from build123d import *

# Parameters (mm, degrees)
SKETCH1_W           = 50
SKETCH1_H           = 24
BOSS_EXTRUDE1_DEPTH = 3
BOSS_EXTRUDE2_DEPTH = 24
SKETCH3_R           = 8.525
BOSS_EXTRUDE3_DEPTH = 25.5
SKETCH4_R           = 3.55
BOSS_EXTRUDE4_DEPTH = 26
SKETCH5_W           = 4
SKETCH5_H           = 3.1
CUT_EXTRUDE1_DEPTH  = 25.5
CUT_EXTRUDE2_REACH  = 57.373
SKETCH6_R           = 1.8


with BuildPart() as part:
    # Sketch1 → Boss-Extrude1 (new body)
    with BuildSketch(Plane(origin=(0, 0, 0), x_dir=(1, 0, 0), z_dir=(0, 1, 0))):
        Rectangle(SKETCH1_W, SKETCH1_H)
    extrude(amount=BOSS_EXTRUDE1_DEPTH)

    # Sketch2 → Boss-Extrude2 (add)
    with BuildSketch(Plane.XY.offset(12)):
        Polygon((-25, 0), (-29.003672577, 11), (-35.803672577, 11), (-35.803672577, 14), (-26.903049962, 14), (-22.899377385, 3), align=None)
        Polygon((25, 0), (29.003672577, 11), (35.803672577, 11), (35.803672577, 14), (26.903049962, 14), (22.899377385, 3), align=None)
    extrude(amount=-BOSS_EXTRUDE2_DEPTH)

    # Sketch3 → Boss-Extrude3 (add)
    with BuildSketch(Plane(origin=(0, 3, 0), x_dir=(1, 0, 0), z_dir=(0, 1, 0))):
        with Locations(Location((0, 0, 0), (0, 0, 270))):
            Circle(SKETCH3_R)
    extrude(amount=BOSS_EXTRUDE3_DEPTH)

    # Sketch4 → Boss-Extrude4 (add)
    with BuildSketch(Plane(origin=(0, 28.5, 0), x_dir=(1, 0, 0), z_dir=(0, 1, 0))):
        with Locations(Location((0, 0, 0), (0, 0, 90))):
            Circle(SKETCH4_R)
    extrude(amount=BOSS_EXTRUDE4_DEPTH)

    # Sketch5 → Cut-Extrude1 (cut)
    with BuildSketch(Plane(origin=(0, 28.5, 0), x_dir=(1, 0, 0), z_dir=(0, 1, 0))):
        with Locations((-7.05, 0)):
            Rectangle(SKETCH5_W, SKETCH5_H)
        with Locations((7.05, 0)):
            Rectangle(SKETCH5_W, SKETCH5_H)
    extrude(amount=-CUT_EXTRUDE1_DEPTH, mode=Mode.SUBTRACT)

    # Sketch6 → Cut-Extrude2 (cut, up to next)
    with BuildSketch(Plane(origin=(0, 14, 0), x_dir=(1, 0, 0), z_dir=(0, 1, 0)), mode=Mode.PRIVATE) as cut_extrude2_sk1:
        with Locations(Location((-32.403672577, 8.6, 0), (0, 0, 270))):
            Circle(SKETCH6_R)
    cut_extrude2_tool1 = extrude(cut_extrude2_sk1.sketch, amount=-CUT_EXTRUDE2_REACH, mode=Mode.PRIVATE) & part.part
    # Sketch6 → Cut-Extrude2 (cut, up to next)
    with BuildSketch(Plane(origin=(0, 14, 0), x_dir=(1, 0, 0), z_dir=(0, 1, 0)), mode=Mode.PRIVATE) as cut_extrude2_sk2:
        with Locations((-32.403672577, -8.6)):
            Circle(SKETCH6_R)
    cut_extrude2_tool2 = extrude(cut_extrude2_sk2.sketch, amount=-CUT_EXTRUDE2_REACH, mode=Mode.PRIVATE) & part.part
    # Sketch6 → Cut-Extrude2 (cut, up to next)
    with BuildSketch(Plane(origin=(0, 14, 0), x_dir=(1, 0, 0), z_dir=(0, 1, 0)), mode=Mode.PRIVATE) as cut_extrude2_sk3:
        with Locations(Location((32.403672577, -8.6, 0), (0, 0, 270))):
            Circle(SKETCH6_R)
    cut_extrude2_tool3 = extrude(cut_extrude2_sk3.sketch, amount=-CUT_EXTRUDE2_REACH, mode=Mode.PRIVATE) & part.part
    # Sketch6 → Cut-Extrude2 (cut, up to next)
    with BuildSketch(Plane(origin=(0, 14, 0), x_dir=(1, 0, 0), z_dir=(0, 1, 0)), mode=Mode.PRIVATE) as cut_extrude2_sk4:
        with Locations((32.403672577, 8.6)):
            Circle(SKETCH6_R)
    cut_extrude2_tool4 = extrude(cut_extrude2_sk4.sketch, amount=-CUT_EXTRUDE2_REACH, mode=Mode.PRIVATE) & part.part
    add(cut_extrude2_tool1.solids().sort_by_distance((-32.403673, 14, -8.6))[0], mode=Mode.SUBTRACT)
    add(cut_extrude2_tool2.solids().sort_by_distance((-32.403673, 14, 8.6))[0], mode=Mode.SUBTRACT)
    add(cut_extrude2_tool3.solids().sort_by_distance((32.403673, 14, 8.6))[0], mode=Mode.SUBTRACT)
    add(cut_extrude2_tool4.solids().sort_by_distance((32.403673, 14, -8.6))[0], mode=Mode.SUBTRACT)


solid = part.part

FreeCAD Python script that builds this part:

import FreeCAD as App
import Part
import Sketcher
from FreeCAD import Vector
Q = App.Units.Quantity


def add_polygon(sketch, points):
    """Adds a closed chain of lines whose ends are joined by coincident constraints."""
    first, n = sketch.GeometryCount, len(points)
    for a, b in zip(points, points[1:] + points[:1]):
        sketch.addGeometry(Part.LineSegment(App.Vector(*a, 0), App.Vector(*b, 0)), False)
    for i in range(n):
        sketch.addConstraint(Sketcher.Constraint("Coincident", first + i, 2, first + (i + 1) % n, 1))

doc = App.newDocument("Part")
body = doc.addObject("PartDesign::Body", "Body")

# Sketch on XZ plane
sketch1 = body.newObject("Sketcher::SketchObject", "Sketch")
sketch1.AttachmentSupport = (doc.getObject("XZ_Plane"), [""])
sketch1.MapMode = "FlatFace"
add_polygon(sketch1, [(-25, -12), (-25, 12), (25, 12), (25, -12)])  # lines 0-3
sketch1.addConstraint(Sketcher.Constraint("Vertical", 0))
sketch1.addConstraint(Sketcher.Constraint("Horizontal", 1))
sketch1.addConstraint(Sketcher.Constraint("Vertical", 2))
sketch1.addConstraint(Sketcher.Constraint("Horizontal", 3))
sketch1.addConstraint(Sketcher.Constraint("Symmetric", 0, 2, 2, 2, -1, 1))
sketch1.addConstraint(Sketcher.Constraint("DistanceX", 1, 1, 1, 2, Q("50 mm")))
sketch1.addConstraint(Sketcher.Constraint("DistanceY", 0, 1, 0, 2, Q("24 mm")))
pad1 = body.newObject("PartDesign::Pad", "Pad")
pad1.Profile = sketch1
pad1.Length = 3
pad1.Reversed = True

# Sketch on XY plane
sketch2 = body.newObject("Sketcher::SketchObject", "Sketch001")
sketch2.AttachmentSupport = (doc.getObject("XY_Plane"), [""])
sketch2.MapMode = "FlatFace"
sketch2.AttachmentOffset = App.Placement(Vector(0, 0, 12), App.Rotation())
add_polygon(sketch2, [(-29.003673, 11), (-25, 0), (-22.899377, 3), (-26.90305, 14), (-35.803673, 14), (-35.803673, 11)])  # lines 0-5
add_polygon(sketch2, [(25, 0), (29.003673, 11), (35.803673, 11), (35.803673, 14), (26.90305, 14), (22.899377, 3)])  # lines 6-11
sketch2.addConstraint(Sketcher.Constraint("Horizontal", 3))
sketch2.addConstraint(Sketcher.Constraint("Vertical", 4))
sketch2.addConstraint(Sketcher.Constraint("Horizontal", 5))
sketch2.addConstraint(Sketcher.Constraint("Horizontal", 7))
sketch2.addConstraint(Sketcher.Constraint("Vertical", 8))
sketch2.addConstraint(Sketcher.Constraint("Horizontal", 9))
sketch2.addConstraint(Sketcher.Constraint("Symmetric", 0, 2, 11, 2, -1, 1))
sketch2.addConstraint(Sketcher.Constraint("Symmetric", 5, 2, 6, 2, -2))
sketch2.addConstraint(Sketcher.Constraint("Symmetric", 3, 2, 8, 2, -2))
sketch2.addConstraint(Sketcher.Constraint("Symmetric", 1, 2, 10, 2, -2))
sketch2.addConstraint(Sketcher.Constraint("PointOnObject", 0, 2, -1))
sketch2.addConstraint(Sketcher.Constraint("Parallel", 0, 2))
sketch2.addConstraint(Sketcher.Constraint("Parallel", 6, 10))
sketch2.addConstraint(Sketcher.Constraint("Equal", 0, 2))
sketch2.addConstraint(Sketcher.Constraint("DistanceY", 4, 2, 4, 1, Q("3 mm")))
sketch2.addConstraint(Sketcher.Constraint("Angle", 0, Q("-70 deg")))
sketch2.addConstraint(Sketcher.Constraint("Angle", 1, Q("55 deg")))
sketch2.addConstraint(Sketcher.Constraint("DistanceX", 5, 1, 5, 2, Q("6.8 mm")))
sketch2.addConstraint(Sketcher.Constraint("DistanceX", 0, 2, -1, 1, Q("25 mm")))
sketch2.addConstraint(Sketcher.Constraint("DistanceY", -1, 1, 2, 2, Q("14 mm")))
pad2 = body.newObject("PartDesign::Pad", "Pad001")
pad2.Profile = sketch2
pad2.Length = 24
pad2.Reversed = True

# Sketch on XZ plane
sketch3 = body.newObject("Sketcher::SketchObject", "Sketch002")
sketch3.AttachmentSupport = (doc.getObject("XZ_Plane"), [""])
sketch3.MapMode = "FlatFace"
sketch3.AttachmentOffset = App.Placement(Vector(0, 0, -3), App.Rotation())
sketch3.addGeometry(Part.Circle(Vector(0, 0, 0), Vector(0, 0, 1), 8.525), False)
sketch3.addConstraint(Sketcher.Constraint("Coincident", 0, 3, -1, 1))
sketch3.addConstraint(Sketcher.Constraint("Diameter", 0, Q("17.05 mm")))
pad3 = body.newObject("PartDesign::Pad", "Pad002")
pad3.Profile = sketch3
pad3.Length = 25.5
pad3.Reversed = True

# Sketch on XZ plane
sketch4 = body.newObject("Sketcher::SketchObject", "Sketch003")
sketch4.AttachmentSupport = (doc.getObject("XZ_Plane"), [""])
sketch4.MapMode = "FlatFace"
sketch4.AttachmentOffset = App.Placement(Vector(0, 0, -28.5), App.Rotation())
sketch4.addGeometry(Part.Circle(Vector(0, 0, 0), Vector(0, 0, 1), 3.55), False)
sketch4.addConstraint(Sketcher.Constraint("Coincident", 0, 3, -1, 1))
sketch4.addConstraint(Sketcher.Constraint("Diameter", 0, Q("7.1 mm")))
pad4 = body.newObject("PartDesign::Pad", "Pad003")
pad4.Profile = sketch4
pad4.Length = 26
pad4.Reversed = True

# Sketch on XZ plane
sketch5 = body.newObject("Sketcher::SketchObject", "Sketch004")
sketch5.AttachmentSupport = (doc.getObject("XZ_Plane"), [""])
sketch5.MapMode = "FlatFace"
sketch5.AttachmentOffset = App.Placement(Vector(0, 0, -28.5), App.Rotation())
add_polygon(sketch5, [(-9.05, -1.55), (-9.05, 1.55), (-5.05, 1.55), (-5.05, -1.55)])  # lines 0-3
add_polygon(sketch5, [(5.05, -1.55), (5.05, 1.55), (9.05, 1.55), (9.05, -1.55)])  # lines 4-7
sketch5.addConstraint(Sketcher.Constraint("Vertical", 0))
sketch5.addConstraint(Sketcher.Constraint("Horizontal", 1))
sketch5.addConstraint(Sketcher.Constraint("Vertical", 2))
sketch5.addConstraint(Sketcher.Constraint("Horizontal", 3))
sketch5.addConstraint(Sketcher.Constraint("Vertical", 4))
sketch5.addConstraint(Sketcher.Constraint("Horizontal", 5))
sketch5.addConstraint(Sketcher.Constraint("Vertical", 6))
sketch5.addConstraint(Sketcher.Constraint("Horizontal", 7))
sketch5.addConstraint(Sketcher.Constraint("Symmetric", 2, 2, 4, 2, -1, 1))
sketch5.addConstraint(Sketcher.Constraint("Symmetric", 0, 2, 6, 2, -1, 1))
sketch5.addConstraint(Sketcher.Constraint("Horizontal", 1, 2, 4, 2))
sketch5.addConstraint(Sketcher.Constraint("DistanceX", 1, 1, 1, 2, Q("4 mm")))
sketch5.addConstraint(Sketcher.Constraint("DistanceY", 0, 1, 0, 2, Q("3.1 mm")))
sketch5.addConstraint(Sketcher.Constraint("DistanceX", 1, 2, 4, 2, Q("10.1 mm")))
pocket1 = body.newObject("PartDesign::Pocket", "Pocket")
pocket1.Profile = sketch5
pocket1.Length = 25.5
pocket1.Reversed = True

# Sketch on XZ plane
sketch6 = body.newObject("Sketcher::SketchObject", "Sketch005")
sketch6.AttachmentSupport = (doc.getObject("XZ_Plane"), [""])
sketch6.MapMode = "FlatFace"
sketch6.AttachmentOffset = App.Placement(Vector(0, 0, -14), App.Rotation())
sketch6.addGeometry(Part.Circle(Vector(-32.403673, -8.6, 0), Vector(0, 0, 1), 1.8), False)
sketch6.addConstraint(Sketcher.Constraint("Diameter", 0, Q("3.6 mm")))
sketch6.addConstraint(Sketcher.Constraint("DistanceY", 0, 3, -1, 1, Q("8.6 mm")))
sketch6.addConstraint(Sketcher.Constraint("DistanceX", 0, 3, -1, 1, Q("32.403673 mm")))
pocket2 = body.newObject("PartDesign::Pocket", "Pocket001")
pocket2.Profile = sketch6
pocket2.Type = "UpToFirst"
pocket2.Reversed = True

# Sketch on XZ plane
sketch7 = body.newObject("Sketcher::SketchObject", "Sketch006")
sketch7.AttachmentSupport = (doc.getObject("XZ_Plane"), [""])
sketch7.MapMode = "FlatFace"
sketch7.AttachmentOffset = App.Placement(Vector(0, 0, -14), App.Rotation())
sketch7.addGeometry(Part.Circle(Vector(-32.403673, 8.6, 0), Vector(0, 0, 1), 1.8), False)
sketch7.addConstraint(Sketcher.Constraint("Diameter", 0, Q("3.6 mm")))
sketch7.addConstraint(Sketcher.Constraint("DistanceY", -1, 1, 0, 3, Q("8.6 mm")))
sketch7.addConstraint(Sketcher.Constraint("DistanceX", 0, 3, -1, 1, Q("32.403673 mm")))
pocket3 = body.newObject("PartDesign::Pocket", "Pocket002")
pocket3.Profile = sketch7
pocket3.Type = "UpToFirst"
pocket3.Reversed = True

# Sketch on XZ plane
sketch8 = body.newObject("Sketcher::SketchObject", "Sketch007")
sketch8.AttachmentSupport = (doc.getObject("XZ_Plane"), [""])
sketch8.MapMode = "FlatFace"
sketch8.AttachmentOffset = App.Placement(Vector(0, 0, -14), App.Rotation())
sketch8.addGeometry(Part.Circle(Vector(32.403673, 8.6, 0), Vector(0, 0, 1), 1.8), False)
sketch8.addConstraint(Sketcher.Constraint("Diameter", 0, Q("3.6 mm")))
sketch8.addConstraint(Sketcher.Constraint("DistanceY", -1, 1, 0, 3, Q("8.6 mm")))
sketch8.addConstraint(Sketcher.Constraint("DistanceX", -1, 1, 0, 3, Q("32.403673 mm")))
pocket4 = body.newObject("PartDesign::Pocket", "Pocket003")
pocket4.Profile = sketch8
pocket4.Type = "UpToFirst"
pocket4.Reversed = True

# Sketch on XZ plane
sketch9 = body.newObject("Sketcher::SketchObject", "Sketch008")
sketch9.AttachmentSupport = (doc.getObject("XZ_Plane"), [""])
sketch9.MapMode = "FlatFace"
sketch9.AttachmentOffset = App.Placement(Vector(0, 0, -14), App.Rotation())
sketch9.addGeometry(Part.Circle(Vector(32.403673, -8.6, 0), Vector(0, 0, 1), 1.8), False)
sketch9.addConstraint(Sketcher.Constraint("Diameter", 0, Q("3.6 mm")))
sketch9.addConstraint(Sketcher.Constraint("DistanceY", 0, 3, -1, 1, Q("8.6 mm")))
sketch9.addConstraint(Sketcher.Constraint("DistanceX", -1, 1, 0, 3, Q("32.403673 mm")))
pocket5 = body.newObject("PartDesign::Pocket", "Pocket004")
pocket5.Profile = sketch9
pocket5.Type = "UpToFirst"
pocket5.Reversed = True

doc.recompute()
